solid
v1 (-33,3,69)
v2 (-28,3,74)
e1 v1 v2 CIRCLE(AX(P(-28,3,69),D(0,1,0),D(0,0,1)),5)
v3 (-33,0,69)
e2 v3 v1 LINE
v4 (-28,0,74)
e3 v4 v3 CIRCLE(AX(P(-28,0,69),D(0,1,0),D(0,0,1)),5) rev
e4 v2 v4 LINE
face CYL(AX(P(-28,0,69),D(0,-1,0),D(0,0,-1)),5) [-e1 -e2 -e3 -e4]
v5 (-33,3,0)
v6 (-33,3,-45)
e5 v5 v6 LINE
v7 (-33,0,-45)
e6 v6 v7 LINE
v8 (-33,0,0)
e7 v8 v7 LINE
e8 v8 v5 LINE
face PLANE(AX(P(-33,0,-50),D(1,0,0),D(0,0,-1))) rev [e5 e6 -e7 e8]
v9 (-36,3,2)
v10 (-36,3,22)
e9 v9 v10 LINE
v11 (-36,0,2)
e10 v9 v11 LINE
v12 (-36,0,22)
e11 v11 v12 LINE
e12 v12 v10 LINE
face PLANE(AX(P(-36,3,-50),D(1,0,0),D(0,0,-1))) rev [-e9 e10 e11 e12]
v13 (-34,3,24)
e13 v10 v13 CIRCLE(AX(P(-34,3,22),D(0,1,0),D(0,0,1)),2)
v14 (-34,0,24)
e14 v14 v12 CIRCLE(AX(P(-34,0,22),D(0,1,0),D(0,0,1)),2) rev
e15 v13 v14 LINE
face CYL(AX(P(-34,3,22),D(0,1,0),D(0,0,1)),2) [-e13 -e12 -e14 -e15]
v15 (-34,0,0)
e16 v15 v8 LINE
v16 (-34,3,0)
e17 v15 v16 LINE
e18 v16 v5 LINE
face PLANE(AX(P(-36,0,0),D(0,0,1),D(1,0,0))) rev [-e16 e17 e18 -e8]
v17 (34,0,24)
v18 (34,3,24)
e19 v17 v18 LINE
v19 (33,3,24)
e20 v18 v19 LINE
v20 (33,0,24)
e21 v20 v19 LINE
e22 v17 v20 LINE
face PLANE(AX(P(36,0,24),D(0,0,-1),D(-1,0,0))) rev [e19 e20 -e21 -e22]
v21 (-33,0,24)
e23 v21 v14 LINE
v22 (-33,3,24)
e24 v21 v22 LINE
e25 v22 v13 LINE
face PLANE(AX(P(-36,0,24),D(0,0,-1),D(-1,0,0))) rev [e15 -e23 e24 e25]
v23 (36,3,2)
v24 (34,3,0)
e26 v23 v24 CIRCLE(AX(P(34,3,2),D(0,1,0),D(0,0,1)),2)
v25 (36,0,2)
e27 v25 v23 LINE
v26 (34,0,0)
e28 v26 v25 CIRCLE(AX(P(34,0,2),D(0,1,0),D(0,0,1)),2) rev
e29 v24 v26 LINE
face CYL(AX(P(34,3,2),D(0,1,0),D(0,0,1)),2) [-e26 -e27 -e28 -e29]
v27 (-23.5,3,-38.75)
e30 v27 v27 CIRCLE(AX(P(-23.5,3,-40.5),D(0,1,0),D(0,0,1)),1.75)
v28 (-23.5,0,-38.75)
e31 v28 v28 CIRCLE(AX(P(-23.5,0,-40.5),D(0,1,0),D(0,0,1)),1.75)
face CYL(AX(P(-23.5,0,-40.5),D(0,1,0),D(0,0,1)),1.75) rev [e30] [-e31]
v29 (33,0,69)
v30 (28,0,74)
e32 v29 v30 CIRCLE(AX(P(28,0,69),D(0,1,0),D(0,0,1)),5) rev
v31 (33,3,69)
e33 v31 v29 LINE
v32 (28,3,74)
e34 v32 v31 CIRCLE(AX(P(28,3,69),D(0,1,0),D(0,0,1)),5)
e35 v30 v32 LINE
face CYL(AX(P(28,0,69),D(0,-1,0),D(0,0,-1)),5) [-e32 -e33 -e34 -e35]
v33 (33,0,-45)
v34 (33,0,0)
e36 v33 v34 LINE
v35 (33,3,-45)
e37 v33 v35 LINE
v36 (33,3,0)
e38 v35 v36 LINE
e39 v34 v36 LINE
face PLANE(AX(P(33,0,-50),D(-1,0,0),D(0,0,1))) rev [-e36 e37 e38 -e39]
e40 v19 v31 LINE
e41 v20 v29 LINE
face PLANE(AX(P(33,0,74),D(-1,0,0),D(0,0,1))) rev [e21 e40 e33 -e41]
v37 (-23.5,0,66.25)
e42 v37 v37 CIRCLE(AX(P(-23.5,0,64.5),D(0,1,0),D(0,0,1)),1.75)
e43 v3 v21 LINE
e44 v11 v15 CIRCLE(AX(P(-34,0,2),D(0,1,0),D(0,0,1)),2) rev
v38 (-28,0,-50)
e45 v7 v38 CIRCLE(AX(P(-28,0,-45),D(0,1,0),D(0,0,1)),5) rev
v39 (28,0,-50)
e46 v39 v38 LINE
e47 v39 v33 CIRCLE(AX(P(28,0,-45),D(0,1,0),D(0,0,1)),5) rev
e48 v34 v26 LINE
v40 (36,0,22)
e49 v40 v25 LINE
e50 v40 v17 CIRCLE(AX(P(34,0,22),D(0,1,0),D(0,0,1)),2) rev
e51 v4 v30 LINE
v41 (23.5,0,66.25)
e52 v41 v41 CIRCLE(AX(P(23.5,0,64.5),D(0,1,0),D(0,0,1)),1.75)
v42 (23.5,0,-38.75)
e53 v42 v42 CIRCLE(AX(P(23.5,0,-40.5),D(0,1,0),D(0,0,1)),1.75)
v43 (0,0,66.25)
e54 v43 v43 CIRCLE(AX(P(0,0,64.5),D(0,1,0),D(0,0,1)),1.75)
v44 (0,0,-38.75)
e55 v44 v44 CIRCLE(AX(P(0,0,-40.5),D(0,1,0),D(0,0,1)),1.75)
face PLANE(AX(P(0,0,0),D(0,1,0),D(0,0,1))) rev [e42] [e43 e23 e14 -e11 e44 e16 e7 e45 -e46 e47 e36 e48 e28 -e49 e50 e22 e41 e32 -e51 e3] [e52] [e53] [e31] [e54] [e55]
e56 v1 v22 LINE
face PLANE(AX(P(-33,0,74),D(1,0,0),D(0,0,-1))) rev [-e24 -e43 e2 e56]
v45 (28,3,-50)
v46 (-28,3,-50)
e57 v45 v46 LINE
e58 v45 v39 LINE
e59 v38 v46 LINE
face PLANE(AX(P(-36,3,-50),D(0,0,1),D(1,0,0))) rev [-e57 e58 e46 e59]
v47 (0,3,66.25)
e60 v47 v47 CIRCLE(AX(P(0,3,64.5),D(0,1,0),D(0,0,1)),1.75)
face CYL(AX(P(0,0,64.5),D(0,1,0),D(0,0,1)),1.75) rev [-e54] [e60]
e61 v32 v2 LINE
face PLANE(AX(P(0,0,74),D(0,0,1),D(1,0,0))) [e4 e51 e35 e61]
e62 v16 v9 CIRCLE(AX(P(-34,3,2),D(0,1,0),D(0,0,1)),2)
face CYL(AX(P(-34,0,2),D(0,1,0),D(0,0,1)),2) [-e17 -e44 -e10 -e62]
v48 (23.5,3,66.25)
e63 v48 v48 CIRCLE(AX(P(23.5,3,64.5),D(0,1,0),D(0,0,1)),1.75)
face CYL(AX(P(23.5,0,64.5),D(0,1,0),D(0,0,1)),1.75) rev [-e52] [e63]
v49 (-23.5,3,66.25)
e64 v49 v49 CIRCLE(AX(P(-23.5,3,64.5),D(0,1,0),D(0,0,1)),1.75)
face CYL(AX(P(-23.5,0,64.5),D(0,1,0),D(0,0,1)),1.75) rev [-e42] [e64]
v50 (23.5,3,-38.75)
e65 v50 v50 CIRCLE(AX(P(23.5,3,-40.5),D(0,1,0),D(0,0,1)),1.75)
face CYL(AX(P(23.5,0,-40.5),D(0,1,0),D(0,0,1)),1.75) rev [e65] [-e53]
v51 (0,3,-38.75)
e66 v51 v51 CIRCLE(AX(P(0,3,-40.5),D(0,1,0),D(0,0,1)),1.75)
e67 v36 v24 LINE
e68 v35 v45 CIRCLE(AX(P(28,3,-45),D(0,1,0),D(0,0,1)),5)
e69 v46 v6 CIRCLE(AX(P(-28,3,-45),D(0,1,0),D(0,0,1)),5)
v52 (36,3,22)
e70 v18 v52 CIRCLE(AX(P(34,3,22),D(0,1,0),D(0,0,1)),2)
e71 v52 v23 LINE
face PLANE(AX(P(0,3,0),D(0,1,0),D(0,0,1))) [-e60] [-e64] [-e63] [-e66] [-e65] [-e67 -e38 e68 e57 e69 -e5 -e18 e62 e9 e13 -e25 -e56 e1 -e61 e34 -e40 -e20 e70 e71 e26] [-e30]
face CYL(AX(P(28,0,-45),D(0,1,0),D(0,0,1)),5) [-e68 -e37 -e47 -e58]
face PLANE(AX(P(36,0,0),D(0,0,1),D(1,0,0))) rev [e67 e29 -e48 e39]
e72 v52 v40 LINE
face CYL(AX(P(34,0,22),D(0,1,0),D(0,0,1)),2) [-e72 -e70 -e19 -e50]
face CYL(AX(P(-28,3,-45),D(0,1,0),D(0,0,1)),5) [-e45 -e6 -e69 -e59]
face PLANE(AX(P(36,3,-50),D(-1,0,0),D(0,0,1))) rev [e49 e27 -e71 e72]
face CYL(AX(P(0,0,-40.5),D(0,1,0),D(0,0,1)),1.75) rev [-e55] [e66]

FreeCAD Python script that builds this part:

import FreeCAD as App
import Part
import Sketcher
from FreeCAD import Vector
Q = App.Units.Quantity


def edges_at(feature, points):
    """Names of the edges that pass closest to the given points."""
    edges = feature.Shape.Edges
    near = lambda p: min(range(len(edges)), key=lambda i: edges[i].distToShape(Part.Vertex(*p))[0])
    return sorted({f"Edge{near(p) + 1}" for p in points})


def add_polygon(sketch, points):
    """Adds a closed chain of lines whose ends are joined by coincident constraints."""
    first, n = sketch.GeometryCount, len(points)
    for a, b in zip(points, points[1:] + points[:1]):
        sketch.addGeometry(Part.LineSegment(App.Vector(*a, 0), App.Vector(*b, 0)), False)
    for i in range(n):
        sketch.addConstraint(Sketcher.Constraint("Coincident", first + i, 2, first + (i + 1) % n, 1))

doc = App.newDocument("Part")
params = doc.addObject("Spreadsheet::Sheet", "Params")
for row, (alias, value) in enumerate([
    ("sketch1_width", "72 mm"),
    ("sketch1_height", "100 mm"),
    ("pad1_length", "3 mm"),
    ("sketch2_width", "72 mm"),
    ("sketch2_height", "3 mm"),
    ("pad2_length", "24 mm"),
    ("sketch3_width", "3 mm"),
    ("sketch3_height", "50 mm"),
    ("sketch4_diameter", "3.5 mm"),
    ("sketch5_diameter", "3.5 mm"),
    ("fillet_radius", "5 mm"),
    ("fillet2_radius", "2 mm"),
    ("sketch6_diameter", "3.5 mm"),
], start=1):
    params.set(f"A{row}", alias)
    params.set(f"B{row}", "=" + value)
    params.setAlias(f"B{row}", alias)

body = doc.addObject("PartDesign::Body", "Body")

sketch1 = body.newObject("Sketcher::SketchObject", "Sketch")
sketch1.AttachmentSupport = (doc.getObject("XZ_Plane"), [""])
sketch1.MapMode = "FlatFace"
add_polygon(sketch1, [(-36, -50), (-36, 50), (36, 50), (36, -50)])
sketch1.addConstraint(Sketcher.Constraint("Vertical", 0))
sketch1.addConstraint(Sketcher.Constraint("Horizontal", 1))
sketch1.addConstraint(Sketcher.Constraint("Vertical", 2))
sketch1.addConstraint(Sketcher.Constraint("Horizontal", 3))
sketch1.addConstraint(Sketcher.Constraint("Symmetric", 0, 2, 2, 2, -1, 1))
sketch1.addConstraint(Sketcher.Constraint("DistanceX", 1, 1, 1, 2, Q("72 mm")))
sketch1.addConstraint(Sketcher.Constraint("DistanceY", 0, 1, 0, 2, Q("100 mm")))
sketch1.setExpression("Constraints[9]", "Params.sketch1_width")
sketch1.setExpression("Constraints[10]", "Params.sketch1_height")
pad1 = body.newObject("PartDesign::Pad", "Pad")
pad1.Profile = sketch1
pad1.setExpression("Length", "Params.pad1_length")
pad1.Reversed = True

sketch2 = body.newObject("Sketcher::SketchObject", "Sketch001")
sketch2.AttachmentSupport = (doc.getObject("XY_Plane"), [""])
sketch2.MapMode = "FlatFace"
sketch2.AttachmentOffset = App.Placement(Vector(0, 0, 50), App.Rotation())
add_polygon(sketch2, [(-36, 3), (-36, 0), (36, 0), (36, 3)])
sketch2.addConstraint(Sketcher.Constraint("Vertical", 0))
sketch2.addConstraint(Sketcher.Constraint("Horizontal", 1))
sketch2.addConstraint(Sketcher.Constraint("Vertical", 2))
sketch2.addConstraint(Sketcher.Constraint("Horizontal", 3))
sketch2.addConstraint(Sketcher.Constraint("Symmetric", 0, 2, 1, 2, -1, 1))
sketch2.addConstraint(Sketcher.Constraint("DistanceX", 1, 1, 1, 2, Q("72 mm")))
sketch2.addConstraint(Sketcher.Constraint("DistanceY", 0, 2, 0, 1, Q("3 mm")))
sketch2.setExpression("Constraints[9]", "Params.sketch2_width")
sketch2.setExpression("Constraints[10]", "Params.sketch2_height")
pad2 = body.newObject("PartDesign::Pad", "Pad001")
pad2.Profile = sketch2
pad2.setExpression("Length", "Params.pad2_length")

sketch3 = body.newObject("Sketcher::SketchObject", "Sketch002")
sketch3.AttachmentSupport = (doc.getObject("XZ_Plane"), [""])
sketch3.MapMode = "FlatFace"
sketch3.AttachmentOffset = App.Placement(Vector(0, 0, -3), App.Rotation())
add_polygon(sketch3, [(-36, -50), (-36, 0), (-33, 0), (-33, -50)])
add_polygon(sketch3, [(33, -50), (33, 0), (36, 0), (36, -50)])
add_polygon(sketch3, [(-36, 24), (-36, 74), (-33, 74), (-33, 24)])
add_polygon(sketch3, [(33, 24), (33, 74), (36, 74), (36, 24)])
sketch3.addConstraint(Sketcher.Constraint("Vertical", 0))
sketch3.addConstraint(Sketcher.Constraint("Horizontal", 1))
sketch3.addConstraint(Sketcher.Constraint("Vertical", 2))
sketch3.addConstraint(Sketcher.Constraint("Horizontal", 3))
sketch3.addConstraint(Sketcher.Constraint("Vertical", 4))
sketch3.addConstraint(Sketcher.Constraint("Horizontal", 5))
sketch3.addConstraint(Sketcher.Constraint("Vertical", 6))
sketch3.addConstraint(Sketcher.Constraint("Horizontal", 7))
sketch3.addConstraint(Sketcher.Constraint("Vertical", 8))
sketch3.addConstraint(Sketcher.Constraint("Horizontal", 9))
sketch3.addConstraint(Sketcher.Constraint("Vertical", 10))
sketch3.addConstraint(Sketcher.Constraint("Horizontal", 11))
sketch3.addConstraint(Sketcher.Constraint("Vertical", 12))
sketch3.addConstraint(Sketcher.Constraint("Horizontal", 13))
sketch3.addConstraint(Sketcher.Constraint("Vertical", 14))
sketch3.addConstraint(Sketcher.Constraint("Horizontal", 15))
sketch3.addConstraint(Sketcher.Constraint("Symmetric", 1, 2, 4, 2, -1, 1))
sketch3.addConstraint(Sketcher.Constraint("Symmetric", 0, 2, 5, 2, -2))
sketch3.addConstraint(Sketcher.Constraint("Symmetric", 9, 2, 12, 2, -2))
sketch3.addConstraint(Sketcher.Constraint("Symmetric", 11, 2, 14, 2, -2))
sketch3.addConstraint(Sketcher.Constraint("Horizontal", 3, 2, 6, 2))
sketch3.addConstraint(Sketcher.Constraint("Vertical", 3, 2, 8, 2))
sketch3.addConstraint(Sketcher.Constraint("Vertical", 2, 2, 9, 2))
sketch3.addConstraint(Sketcher.Constraint("Equal", 6, 8))
sketch3.addConstraint(Sketcher.Constraint("DistanceX", 1, 1, 1, 2, Q("3 mm")))
sketch3.addConstraint(Sketcher.Constraint("DistanceY", 0, 1, 0, 2, Q("50 mm")))
sketch3.addConstraint(Sketcher.Constraint("DistanceX", 0, 2, -1, 1, Q("36 mm")))
sketch3.addConstraint(Sketcher.Constraint("DistanceY", -1, 1, 8, 2, Q("74 mm")))
sketch3.setExpression("Constraints[40]", "Params.sketch3_width")
sketch3.setExpression("Constraints[41]", "Params.sketch3_height")
pocket1 = body.newObject("PartDesign::Pocket", "Pocket")
pocket1.Profile = sketch3
pocket1.Type = "ThroughAll"
pocket1.Midplane = True

sketch4 = body.newObject("Sketcher::SketchObject", "Sketch003")
sketch4.AttachmentSupport = (doc.getObject("XZ_Plane"), [""])
sketch4.MapMode = "FlatFace"
sketch4.AttachmentOffset = App.Placement(Vector(0, 0, -3), App.Rotation())
sketch4.addGeometry(Part.Circle(Vector(-23.5, -40.5, 0), Vector(0, 0, 1), 1.8), False)
sketch4.addConstraint(Sketcher.Constraint("Diameter", 0, Q("3.5 mm")))
sketch4.addConstraint(Sketcher.Constraint("DistanceX", 0, 3, -1, 1, Q("23.5 mm")))
sketch4.addConstraint(Sketcher.Constraint("DistanceY", 0, 3, -1, 1, Q("40.5 mm")))
sketch4.setExpression("Constraints[0]", "Params.sketch4_diameter")
pocket2 = body.newObject("PartDesign::Pocket", "Pocket001")
pocket2.Profile = sketch4
pocket2.Type = "ThroughAll"
pocket2.Midplane = True

sketch5 = body.newObject("Sketcher::SketchObject", "Sketch004")
sketch5.AttachmentSupport = (doc.getObject("XZ_Plane"), [""])
sketch5.MapMode = "FlatFace"
sketch5.AttachmentOffset = App.Placement(Vector(0, 0, -3), App.Rotation())
sketch5.addGeometry(Part.Circle(Vector(23.5, -40.5, 0), Vector(0, 0, 1), 1.8), False)
sketch5.addGeometry(Part.Circle(Vector(-23.5, 64.5, 0), Vector(0, 0, 1), 1.8), False)
sketch5.addGeometry(Part.Circle(Vector(23.5, 64.5, 0), Vector(0, 0, 1), 1.8), False)
sketch5.addConstraint(Sketcher.Constraint("Equal", 0, 1))
sketch5.addConstraint(Sketcher.Constraint("Equal", 1, 2))
sketch5.addConstraint(Sketcher.Constraint("Symmetric", 1, 3, 2, 3, -2))
sketch5.addConstraint(Sketcher.Constraint("Vertical", 0, 3, 2, 3))
sketch5.addConstraint(Sketcher.Constraint("Diameter", 0, Q("3.5 mm")))
sketch5.addConstraint(Sketcher.Constraint("DistanceX", 1, 3, 0, 3, Q("47 mm")))
sketch5.addConstraint(Sketcher.Constraint("DistanceY", 0, 3, 1, 3, Q("105 mm")))
sketch5.addConstraint(Sketcher.Constraint("DistanceY", 0, 3, -1, 1, Q("40.5 mm")))
sketch5.setExpression("Constraints[4]", "Params.sketch5_diameter")
pocket3 = body.newObject("PartDesign::Pocket", "Pocket002")
pocket3.Profile = sketch5
pocket3.Type = "ThroughAll"
pocket3.Midplane = True
doc.recompute()

fillet = body.newObject("PartDesign::Fillet", "Fillet")
fillet.Base = (pocket3, edges_at(pocket3, [
    (33, 1.5, -50),
    (-33, 1.5, 74),
    (33, 1.5, 74),
    (-33, 1.5, -50),
]))
fillet.setExpression("Radius", "Params.fillet_radius")
doc.recompute()

fillet2 = body.newObject("PartDesign::Fillet", "Fillet001")
fillet2.Base = (fillet, edges_at(fillet, [
    (36, 1.5, 0),
    (-36, 1.5, 24),
    (36, 1.5, 24),
    (-36, 1.5, 0),
]))
fillet2.setExpression("Radius", "Params.fillet2_radius")

sketch6 = body.newObject("Sketcher::SketchObject", "Sketch005")
sketch6.AttachmentSupport = (doc.getObject("XZ_Plane"), [""])
sketch6.MapMode = "FlatFace"
sketch6.AttachmentOffset = App.Placement(Vector(0, 0, -3), App.Rotation())
sketch6.addGeometry(Part.Circle(Vector(0, -40.5, 0), Vector(0, 0, 1), 1.8), False)
sketch6.addGeometry(Part.Circle(Vector(0, 64.5, 0), Vector(0, 0, 1), 1.8), False)
sketch6.addConstraint(Sketcher.Constraint("Equal", 0, 1))
sketch6.addConstraint(Sketcher.Constraint("PointOnObject", 0, 3, -2))
sketch6.addConstraint(Sketcher.Constraint("PointOnObject", 1, 3, -2))
sketch6.addConstraint(Sketcher.Constraint("Diameter", 0, Q("3.5 mm")))
sketch6.addConstraint(Sketcher.Constraint("DistanceY", 0, 3, 1, 3, Q("105 mm")))
sketch6.addConstraint(Sketcher.Constraint("DistanceY", 0, 3, -1, 1, Q("40.5 mm")))
sketch6.setExpression("Constraints[3]", "Params.sketch6_diameter")
pocket4 = body.newObject("PartDesign::Pocket", "Pocket003")
pocket4.Profile = sketch6
pocket4.Type = "ThroughAll"
pocket4.Midplane = True

doc.recompute()
